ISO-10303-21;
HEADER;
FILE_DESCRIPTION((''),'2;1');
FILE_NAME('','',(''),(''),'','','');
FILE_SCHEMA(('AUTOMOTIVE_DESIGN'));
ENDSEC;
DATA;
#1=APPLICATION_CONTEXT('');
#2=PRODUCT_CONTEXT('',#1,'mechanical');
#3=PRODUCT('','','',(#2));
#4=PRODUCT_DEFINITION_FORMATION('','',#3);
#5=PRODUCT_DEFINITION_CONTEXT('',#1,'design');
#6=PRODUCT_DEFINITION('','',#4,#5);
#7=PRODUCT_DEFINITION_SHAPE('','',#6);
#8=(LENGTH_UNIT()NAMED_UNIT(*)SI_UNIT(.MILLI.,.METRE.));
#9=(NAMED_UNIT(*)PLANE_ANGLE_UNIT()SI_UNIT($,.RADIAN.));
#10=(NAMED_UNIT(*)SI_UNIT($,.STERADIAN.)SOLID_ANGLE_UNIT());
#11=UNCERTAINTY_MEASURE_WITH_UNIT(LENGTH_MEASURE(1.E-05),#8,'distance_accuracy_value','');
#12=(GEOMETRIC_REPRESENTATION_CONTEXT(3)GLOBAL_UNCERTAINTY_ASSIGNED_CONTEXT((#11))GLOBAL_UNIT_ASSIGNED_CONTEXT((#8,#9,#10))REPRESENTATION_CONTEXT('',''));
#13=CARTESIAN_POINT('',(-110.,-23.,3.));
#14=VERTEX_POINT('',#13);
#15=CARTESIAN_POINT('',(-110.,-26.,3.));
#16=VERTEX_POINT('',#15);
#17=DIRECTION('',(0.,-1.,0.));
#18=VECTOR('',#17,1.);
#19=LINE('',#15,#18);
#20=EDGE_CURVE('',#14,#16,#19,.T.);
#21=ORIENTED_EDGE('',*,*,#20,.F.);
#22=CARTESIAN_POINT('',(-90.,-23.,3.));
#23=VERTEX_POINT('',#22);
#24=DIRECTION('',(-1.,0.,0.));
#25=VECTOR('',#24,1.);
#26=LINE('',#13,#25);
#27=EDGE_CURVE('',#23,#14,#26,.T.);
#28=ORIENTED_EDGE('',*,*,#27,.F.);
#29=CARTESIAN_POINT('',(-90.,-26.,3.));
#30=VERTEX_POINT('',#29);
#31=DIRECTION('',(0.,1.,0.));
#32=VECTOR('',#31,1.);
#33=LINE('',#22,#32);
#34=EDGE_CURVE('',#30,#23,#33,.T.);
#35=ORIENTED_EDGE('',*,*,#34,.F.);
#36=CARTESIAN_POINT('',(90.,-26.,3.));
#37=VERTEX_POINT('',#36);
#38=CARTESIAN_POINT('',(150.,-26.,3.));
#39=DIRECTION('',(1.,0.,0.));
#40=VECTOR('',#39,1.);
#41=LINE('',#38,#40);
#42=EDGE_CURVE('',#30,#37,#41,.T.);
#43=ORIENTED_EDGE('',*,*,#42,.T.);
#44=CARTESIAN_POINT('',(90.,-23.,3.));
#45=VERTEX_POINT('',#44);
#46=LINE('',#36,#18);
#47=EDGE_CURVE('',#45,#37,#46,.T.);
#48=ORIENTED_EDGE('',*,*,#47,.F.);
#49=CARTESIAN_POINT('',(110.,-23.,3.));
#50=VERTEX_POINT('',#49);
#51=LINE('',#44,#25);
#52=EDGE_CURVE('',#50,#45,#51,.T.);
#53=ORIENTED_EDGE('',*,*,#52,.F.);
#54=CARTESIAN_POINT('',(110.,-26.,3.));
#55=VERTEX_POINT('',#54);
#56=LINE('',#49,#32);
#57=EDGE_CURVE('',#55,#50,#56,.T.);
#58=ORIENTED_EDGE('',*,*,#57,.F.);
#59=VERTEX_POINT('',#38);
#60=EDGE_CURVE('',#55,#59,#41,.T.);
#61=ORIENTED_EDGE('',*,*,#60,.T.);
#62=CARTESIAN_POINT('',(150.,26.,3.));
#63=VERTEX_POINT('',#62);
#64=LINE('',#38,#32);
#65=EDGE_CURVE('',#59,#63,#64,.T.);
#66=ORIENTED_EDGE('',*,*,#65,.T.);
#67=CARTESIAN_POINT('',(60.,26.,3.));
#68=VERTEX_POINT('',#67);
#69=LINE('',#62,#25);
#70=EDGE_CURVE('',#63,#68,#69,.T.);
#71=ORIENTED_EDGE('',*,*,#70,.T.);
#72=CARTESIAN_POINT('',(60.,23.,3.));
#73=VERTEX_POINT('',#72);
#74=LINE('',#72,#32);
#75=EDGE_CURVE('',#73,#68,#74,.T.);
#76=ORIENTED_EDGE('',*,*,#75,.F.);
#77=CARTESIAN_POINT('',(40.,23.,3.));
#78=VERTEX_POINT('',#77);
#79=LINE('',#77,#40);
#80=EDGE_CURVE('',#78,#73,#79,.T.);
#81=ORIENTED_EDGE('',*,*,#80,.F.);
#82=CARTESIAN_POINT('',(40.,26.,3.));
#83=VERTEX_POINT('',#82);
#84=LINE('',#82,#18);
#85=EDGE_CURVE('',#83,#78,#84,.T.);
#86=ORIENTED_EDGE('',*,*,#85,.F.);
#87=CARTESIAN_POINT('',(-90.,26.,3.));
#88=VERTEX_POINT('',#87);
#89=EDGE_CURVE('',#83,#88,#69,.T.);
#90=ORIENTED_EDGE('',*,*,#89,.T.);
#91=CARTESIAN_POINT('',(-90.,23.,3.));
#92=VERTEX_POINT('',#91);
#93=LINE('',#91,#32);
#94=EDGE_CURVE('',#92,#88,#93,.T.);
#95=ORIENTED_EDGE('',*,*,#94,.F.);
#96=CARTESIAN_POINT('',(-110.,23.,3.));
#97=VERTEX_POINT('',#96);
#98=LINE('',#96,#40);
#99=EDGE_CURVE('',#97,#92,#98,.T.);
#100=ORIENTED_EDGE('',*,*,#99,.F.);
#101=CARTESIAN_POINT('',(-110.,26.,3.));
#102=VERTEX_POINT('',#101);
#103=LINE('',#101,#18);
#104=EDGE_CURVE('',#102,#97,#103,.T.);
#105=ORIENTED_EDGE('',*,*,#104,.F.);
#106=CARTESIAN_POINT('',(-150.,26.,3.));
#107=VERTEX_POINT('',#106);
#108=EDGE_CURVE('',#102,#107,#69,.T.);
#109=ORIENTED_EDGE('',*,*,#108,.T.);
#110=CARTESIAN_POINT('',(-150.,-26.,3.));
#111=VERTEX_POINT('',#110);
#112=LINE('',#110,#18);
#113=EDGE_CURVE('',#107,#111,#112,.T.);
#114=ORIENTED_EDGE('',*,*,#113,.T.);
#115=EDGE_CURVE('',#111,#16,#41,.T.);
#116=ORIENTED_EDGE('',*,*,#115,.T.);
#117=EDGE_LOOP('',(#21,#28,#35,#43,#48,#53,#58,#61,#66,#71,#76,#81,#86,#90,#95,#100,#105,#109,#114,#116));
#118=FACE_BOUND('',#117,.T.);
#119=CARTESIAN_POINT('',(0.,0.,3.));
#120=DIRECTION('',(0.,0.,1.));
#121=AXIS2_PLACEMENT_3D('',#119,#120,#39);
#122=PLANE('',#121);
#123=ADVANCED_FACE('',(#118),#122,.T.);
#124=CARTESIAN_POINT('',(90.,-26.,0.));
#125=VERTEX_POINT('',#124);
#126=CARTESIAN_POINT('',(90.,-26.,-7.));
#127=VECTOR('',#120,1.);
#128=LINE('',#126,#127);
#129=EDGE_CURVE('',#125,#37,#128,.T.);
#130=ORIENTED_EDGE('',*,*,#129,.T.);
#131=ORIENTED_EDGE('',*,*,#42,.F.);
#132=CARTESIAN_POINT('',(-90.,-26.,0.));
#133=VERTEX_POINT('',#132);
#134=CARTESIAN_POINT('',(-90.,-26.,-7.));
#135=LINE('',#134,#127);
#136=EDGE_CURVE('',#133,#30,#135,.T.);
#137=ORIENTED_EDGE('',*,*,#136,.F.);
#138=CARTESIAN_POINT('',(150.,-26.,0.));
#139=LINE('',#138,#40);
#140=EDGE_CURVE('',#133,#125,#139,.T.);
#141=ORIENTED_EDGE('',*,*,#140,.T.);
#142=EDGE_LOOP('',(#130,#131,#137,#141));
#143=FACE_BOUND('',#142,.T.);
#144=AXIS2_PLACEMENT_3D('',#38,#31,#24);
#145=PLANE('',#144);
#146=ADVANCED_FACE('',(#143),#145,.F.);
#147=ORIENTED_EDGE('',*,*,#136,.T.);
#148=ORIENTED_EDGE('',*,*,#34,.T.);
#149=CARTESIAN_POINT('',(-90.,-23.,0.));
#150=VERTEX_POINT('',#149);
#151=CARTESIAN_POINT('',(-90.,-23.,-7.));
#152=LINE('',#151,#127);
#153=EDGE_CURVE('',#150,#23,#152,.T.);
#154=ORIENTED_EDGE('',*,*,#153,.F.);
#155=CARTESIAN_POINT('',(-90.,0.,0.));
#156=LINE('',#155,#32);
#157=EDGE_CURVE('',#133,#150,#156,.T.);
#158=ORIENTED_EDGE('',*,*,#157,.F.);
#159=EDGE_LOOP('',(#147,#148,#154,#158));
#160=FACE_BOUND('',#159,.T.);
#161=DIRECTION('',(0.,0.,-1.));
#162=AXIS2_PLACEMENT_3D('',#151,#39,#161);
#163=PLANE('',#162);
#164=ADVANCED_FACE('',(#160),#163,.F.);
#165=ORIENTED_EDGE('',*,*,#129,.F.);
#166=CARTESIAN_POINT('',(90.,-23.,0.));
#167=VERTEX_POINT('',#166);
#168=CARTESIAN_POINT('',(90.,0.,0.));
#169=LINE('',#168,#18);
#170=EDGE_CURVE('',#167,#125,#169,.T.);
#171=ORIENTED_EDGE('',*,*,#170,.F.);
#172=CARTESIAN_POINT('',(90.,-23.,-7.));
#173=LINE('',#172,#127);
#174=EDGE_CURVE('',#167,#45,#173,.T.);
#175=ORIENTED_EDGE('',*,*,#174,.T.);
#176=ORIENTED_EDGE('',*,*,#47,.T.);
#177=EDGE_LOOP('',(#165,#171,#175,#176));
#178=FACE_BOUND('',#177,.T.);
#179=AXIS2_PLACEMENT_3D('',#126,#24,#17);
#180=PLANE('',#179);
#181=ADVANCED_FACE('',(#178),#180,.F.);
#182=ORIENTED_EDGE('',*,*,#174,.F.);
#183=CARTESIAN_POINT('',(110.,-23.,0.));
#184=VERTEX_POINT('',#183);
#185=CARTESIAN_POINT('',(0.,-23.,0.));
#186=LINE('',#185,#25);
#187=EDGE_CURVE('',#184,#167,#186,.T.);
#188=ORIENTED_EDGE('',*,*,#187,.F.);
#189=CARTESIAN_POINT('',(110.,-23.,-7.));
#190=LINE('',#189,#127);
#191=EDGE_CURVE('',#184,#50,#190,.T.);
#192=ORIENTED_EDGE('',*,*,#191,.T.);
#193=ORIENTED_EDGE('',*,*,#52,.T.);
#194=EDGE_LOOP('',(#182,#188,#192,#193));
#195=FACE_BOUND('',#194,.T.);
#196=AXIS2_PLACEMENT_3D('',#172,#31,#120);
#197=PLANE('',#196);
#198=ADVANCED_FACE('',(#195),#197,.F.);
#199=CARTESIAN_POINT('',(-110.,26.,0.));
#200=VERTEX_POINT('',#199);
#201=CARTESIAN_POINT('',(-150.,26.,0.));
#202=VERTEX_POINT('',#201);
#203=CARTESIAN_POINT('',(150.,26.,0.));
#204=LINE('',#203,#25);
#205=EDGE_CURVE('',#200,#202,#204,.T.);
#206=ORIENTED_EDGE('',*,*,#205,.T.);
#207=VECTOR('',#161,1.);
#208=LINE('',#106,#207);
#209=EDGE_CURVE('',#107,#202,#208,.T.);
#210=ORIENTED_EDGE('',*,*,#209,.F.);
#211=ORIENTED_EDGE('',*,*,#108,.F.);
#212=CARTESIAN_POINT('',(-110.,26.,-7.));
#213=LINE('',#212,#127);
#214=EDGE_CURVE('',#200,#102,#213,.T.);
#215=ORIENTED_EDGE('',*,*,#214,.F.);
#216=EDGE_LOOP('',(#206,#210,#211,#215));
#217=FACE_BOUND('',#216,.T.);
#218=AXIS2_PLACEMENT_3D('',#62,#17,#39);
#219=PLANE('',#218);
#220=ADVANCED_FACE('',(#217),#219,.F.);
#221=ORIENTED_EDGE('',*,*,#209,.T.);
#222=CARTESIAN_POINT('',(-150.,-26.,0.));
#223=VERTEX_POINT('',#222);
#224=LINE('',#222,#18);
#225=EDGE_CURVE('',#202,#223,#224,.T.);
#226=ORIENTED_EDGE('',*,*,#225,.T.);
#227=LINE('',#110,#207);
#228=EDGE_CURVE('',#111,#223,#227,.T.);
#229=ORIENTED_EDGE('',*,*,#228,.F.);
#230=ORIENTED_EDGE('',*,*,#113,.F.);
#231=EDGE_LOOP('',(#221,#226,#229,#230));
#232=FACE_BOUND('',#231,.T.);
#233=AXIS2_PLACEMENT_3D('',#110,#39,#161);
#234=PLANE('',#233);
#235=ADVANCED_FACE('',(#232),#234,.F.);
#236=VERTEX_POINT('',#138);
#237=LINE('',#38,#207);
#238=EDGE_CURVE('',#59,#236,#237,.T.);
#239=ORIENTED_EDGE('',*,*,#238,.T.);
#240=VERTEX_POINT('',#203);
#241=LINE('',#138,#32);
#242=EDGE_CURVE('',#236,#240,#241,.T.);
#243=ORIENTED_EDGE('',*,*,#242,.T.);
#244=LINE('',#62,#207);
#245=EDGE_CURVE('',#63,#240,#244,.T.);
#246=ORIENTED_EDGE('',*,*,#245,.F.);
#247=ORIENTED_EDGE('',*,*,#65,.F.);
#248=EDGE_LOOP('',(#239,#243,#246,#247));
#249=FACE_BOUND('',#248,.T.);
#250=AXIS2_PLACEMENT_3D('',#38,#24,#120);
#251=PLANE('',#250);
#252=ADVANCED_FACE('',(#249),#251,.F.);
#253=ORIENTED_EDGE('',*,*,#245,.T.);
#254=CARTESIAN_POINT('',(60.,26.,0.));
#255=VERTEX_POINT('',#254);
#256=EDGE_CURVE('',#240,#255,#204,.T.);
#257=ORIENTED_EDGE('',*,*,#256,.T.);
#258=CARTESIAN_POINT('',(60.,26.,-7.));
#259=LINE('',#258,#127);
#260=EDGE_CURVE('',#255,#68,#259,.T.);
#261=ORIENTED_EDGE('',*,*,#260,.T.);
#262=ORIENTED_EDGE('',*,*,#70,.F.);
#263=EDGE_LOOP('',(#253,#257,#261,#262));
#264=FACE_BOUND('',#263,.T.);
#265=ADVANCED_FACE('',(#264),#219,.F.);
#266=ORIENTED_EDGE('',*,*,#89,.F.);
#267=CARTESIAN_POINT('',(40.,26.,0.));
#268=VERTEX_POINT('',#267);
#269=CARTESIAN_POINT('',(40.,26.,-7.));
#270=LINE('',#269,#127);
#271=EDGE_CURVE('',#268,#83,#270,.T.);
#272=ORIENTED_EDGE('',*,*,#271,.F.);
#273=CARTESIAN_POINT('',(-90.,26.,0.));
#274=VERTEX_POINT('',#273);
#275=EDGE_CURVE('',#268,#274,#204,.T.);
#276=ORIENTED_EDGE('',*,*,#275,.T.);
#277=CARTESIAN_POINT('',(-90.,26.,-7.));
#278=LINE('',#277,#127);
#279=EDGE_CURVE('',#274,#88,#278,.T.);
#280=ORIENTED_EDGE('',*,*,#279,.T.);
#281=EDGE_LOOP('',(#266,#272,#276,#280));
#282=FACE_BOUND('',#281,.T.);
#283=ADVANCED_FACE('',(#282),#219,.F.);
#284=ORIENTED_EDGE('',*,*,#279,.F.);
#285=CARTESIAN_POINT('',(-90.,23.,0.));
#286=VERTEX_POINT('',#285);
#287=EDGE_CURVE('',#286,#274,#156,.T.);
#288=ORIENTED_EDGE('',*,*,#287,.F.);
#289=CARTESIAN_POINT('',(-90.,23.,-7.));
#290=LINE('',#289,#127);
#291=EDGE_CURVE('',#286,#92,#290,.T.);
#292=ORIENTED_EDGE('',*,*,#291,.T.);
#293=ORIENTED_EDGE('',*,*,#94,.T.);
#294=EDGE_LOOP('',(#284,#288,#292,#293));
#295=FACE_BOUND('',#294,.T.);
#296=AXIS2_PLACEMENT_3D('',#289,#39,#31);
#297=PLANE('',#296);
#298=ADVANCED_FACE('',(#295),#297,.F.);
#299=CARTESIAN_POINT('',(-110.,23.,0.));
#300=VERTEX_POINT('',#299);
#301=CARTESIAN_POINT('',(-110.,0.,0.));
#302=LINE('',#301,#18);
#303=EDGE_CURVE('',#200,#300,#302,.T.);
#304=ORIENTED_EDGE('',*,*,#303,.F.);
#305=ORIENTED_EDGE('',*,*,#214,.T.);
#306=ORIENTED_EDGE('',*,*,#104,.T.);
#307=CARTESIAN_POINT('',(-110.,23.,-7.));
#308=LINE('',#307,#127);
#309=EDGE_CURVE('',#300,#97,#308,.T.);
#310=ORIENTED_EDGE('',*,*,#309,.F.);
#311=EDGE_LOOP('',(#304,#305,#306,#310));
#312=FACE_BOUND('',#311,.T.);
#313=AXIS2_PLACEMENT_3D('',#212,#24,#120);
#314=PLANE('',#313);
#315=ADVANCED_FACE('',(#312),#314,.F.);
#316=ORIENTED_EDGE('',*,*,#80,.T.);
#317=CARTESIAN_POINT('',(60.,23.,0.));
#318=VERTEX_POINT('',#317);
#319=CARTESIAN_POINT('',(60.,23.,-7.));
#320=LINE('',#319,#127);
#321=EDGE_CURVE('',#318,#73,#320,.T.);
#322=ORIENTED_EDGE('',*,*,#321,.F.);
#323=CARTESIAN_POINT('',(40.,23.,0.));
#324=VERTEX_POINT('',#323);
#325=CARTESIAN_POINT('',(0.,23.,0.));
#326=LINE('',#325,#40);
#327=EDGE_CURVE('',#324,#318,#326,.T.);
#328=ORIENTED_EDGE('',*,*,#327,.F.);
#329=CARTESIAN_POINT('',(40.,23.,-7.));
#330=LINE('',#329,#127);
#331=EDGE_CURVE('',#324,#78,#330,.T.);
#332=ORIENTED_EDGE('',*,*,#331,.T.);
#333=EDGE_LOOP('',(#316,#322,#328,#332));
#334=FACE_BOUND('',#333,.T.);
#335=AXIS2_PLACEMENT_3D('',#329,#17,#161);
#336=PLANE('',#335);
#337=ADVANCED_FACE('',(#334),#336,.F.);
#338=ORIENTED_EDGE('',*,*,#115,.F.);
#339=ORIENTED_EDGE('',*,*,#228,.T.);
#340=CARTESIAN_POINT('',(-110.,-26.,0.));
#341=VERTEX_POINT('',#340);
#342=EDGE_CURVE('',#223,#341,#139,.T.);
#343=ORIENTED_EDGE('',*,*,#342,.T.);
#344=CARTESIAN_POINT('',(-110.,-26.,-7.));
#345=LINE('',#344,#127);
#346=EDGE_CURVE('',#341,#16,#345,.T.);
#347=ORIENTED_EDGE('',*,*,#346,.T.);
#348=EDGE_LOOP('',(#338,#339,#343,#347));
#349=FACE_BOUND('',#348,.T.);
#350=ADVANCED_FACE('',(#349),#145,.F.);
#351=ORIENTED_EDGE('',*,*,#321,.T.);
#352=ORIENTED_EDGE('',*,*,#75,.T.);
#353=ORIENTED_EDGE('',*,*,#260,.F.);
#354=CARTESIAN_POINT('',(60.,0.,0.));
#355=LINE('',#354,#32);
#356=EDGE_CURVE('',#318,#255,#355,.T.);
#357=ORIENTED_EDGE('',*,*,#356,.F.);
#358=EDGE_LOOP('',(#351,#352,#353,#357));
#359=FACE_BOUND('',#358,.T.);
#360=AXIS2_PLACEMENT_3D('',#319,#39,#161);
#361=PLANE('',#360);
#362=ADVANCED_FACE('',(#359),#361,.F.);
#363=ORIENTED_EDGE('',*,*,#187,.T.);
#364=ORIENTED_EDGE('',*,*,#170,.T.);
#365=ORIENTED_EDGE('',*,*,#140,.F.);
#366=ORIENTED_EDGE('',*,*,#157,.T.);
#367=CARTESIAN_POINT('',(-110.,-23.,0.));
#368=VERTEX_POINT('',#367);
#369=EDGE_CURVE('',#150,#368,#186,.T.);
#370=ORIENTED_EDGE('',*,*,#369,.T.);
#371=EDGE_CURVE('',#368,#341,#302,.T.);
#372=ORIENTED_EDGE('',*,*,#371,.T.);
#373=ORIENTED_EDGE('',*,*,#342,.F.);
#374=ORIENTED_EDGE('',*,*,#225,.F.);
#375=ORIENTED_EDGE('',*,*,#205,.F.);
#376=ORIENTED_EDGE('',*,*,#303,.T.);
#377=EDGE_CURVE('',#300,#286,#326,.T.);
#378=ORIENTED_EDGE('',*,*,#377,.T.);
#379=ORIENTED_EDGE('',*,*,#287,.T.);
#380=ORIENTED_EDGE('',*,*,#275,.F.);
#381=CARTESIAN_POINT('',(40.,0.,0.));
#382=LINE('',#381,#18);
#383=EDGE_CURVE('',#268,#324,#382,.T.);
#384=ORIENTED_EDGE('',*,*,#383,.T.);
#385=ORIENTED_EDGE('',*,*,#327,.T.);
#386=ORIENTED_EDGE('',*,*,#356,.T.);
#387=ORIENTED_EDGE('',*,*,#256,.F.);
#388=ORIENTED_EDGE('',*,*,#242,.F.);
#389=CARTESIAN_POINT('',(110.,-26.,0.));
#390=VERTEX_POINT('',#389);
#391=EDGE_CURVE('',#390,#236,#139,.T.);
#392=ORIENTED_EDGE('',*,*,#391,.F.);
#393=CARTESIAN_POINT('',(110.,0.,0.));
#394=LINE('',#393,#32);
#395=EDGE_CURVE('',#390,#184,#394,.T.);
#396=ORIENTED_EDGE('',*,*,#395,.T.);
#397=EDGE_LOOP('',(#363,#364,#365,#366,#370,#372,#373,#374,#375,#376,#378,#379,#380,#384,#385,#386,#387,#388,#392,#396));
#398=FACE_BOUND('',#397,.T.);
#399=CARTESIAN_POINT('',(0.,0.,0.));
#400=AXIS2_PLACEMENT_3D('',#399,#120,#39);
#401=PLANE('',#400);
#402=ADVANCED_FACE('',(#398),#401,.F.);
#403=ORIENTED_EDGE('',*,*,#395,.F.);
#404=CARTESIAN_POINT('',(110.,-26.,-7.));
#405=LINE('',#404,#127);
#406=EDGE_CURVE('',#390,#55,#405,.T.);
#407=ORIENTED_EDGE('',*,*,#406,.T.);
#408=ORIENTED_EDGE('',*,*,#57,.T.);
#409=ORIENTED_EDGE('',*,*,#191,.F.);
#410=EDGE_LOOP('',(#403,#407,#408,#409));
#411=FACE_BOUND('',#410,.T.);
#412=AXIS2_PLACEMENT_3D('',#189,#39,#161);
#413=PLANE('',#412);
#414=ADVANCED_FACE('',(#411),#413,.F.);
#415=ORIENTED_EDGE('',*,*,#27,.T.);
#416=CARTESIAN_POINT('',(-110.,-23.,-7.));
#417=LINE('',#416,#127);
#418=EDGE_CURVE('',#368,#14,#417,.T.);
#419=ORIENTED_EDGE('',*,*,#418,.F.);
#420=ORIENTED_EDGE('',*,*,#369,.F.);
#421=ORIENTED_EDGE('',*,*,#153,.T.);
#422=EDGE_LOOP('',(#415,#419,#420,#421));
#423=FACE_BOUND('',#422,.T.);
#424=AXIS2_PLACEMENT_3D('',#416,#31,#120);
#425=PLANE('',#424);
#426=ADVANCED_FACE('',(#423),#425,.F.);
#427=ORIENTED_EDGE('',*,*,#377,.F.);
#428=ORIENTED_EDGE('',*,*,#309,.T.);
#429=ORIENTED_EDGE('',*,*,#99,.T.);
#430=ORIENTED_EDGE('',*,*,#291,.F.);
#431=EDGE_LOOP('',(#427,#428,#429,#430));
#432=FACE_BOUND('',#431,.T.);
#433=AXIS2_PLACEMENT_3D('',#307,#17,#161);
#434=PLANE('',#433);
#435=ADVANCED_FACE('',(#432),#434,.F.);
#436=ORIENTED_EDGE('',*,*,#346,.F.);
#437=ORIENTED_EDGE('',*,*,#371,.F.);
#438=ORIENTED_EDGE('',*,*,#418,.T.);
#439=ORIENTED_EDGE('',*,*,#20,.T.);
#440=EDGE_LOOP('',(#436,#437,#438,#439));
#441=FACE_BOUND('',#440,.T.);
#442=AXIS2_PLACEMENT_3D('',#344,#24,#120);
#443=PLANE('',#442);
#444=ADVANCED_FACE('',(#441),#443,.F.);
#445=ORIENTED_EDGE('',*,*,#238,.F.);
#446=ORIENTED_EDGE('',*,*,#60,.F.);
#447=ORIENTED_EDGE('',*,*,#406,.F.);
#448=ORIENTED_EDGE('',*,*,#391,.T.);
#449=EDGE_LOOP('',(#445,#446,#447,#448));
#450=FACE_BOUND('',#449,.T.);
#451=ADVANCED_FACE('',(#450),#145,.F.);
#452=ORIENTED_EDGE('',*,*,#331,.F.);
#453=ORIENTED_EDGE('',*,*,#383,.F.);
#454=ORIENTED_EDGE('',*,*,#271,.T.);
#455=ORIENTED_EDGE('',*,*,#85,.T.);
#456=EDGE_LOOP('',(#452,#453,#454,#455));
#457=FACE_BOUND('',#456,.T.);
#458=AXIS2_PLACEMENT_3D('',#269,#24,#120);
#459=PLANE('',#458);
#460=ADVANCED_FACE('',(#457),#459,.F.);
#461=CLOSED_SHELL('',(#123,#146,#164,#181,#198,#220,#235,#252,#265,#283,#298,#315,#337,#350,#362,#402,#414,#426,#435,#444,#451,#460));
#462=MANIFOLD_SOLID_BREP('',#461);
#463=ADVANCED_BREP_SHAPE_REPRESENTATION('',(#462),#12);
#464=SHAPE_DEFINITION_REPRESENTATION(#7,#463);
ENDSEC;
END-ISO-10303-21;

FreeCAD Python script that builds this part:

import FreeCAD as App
import Part
import Sketcher
Q = App.Units.Quantity


def add_polygon(sketch, points):
    """Adds a closed chain of lines whose ends are joined by coincident constraints."""
    first, n = sketch.GeometryCount, len(points)
    for a, b in zip(points, points[1:] + points[:1]):
        sketch.addGeometry(Part.LineSegment(App.Vector(*a, 0), App.Vector(*b, 0)), False)
    for i in range(n):
        sketch.addConstraint(Sketcher.Constraint("Coincident", first + i, 2, first + (i + 1) % n, 1))

doc = App.newDocument("Part")
body = doc.addObject("PartDesign::Body", "Body")

# Sketch on XY plane
sketch1 = body.newObject("Sketcher::SketchObject", "Sketch")
sketch1.AttachmentSupport = (doc.getObject("XY_Plane"), [""])
sketch1.MapMode = "FlatFace"
add_polygon(sketch1, [(-150, 26), (-150, -26), (150, -26), (150, 26)])  # lines 0-3
sketch1.addConstraint(Sketcher.Constraint("Vertical", 0))
sketch1.addConstraint(Sketcher.Constraint("Horizontal", 1))
sketch1.addConstraint(Sketcher.Constraint("Vertical", 2))
sketch1.addConstraint(Sketcher.Constraint("Horizontal", 3))
sketch1.addConstraint(Sketcher.Constraint("Symmetric", 0, 2, 2, 2, -1, 1))
sketch1.addConstraint(Sketcher.Constraint("DistanceX", 1, 1, 1, 2, Q("300 mm")))
sketch1.addConstraint(Sketcher.Constraint("DistanceY", 0, 2, 0, 1, Q("52 mm")))
pad1 = body.newObject("PartDesign::Pad", "Pad")
pad1.Profile = sketch1
pad1.Length = 3

# Sketch on XY plane
sketch2 = body.newObject("Sketcher::SketchObject", "Sketch001")
sketch2.AttachmentSupport = (doc.getObject("XY_Plane"), [""])
sketch2.MapMode = "FlatFace"
sketch2.AttachmentOffset = App.Placement(App.Vector(0, 0, 3), App.Rotation())
add_polygon(sketch2, [(-110, 26), (-110, 23), (-90, 23), (-90, 26)])  # lines 0-3
sketch2.addConstraint(Sketcher.Constraint("Vertical", 0))
sketch2.addConstraint(Sketcher.Constraint("Horizontal", 1))
sketch2.addConstraint(Sketcher.Constraint("Vertical", 2))
sketch2.addConstraint(Sketcher.Constraint("Horizontal", 3))
sketch2.addConstraint(Sketcher.Constraint("DistanceX", 1, 1, 1, 2, Q("20 mm")))
sketch2.addConstraint(Sketcher.Constraint("DistanceY", 0, 2, 0, 1, Q("3 mm")))
sketch2.addConstraint(Sketcher.Constraint("DistanceX", 0, 2, -1, 1, Q("110 mm")))
sketch2.addConstraint(Sketcher.Constraint("DistanceY", -1, 1, 0, 2, Q("23 mm")))
pocket1 = body.newObject("PartDesign::Pocket", "Pocket")
pocket1.Profile = sketch2
pocket1.Length = 10

# Sketch on XY plane
sketch3 = body.newObject("Sketcher::SketchObject", "Sketch002")
sketch3.AttachmentSupport = (doc.getObject("XY_Plane"), [""])
sketch3.MapMode = "FlatFace"
sketch3.AttachmentOffset = App.Placement(App.Vector(0, 0, 3), App.Rotation())
add_polygon(sketch3, [(-110, -23), (-110, -26), (-90, -26), (-90, -23)])  # lines 0-3
add_polygon(sketch3, [(90, -23), (90, -26), (110, -26), (110, -23)])  # lines 4-7
sketch3.addConstraint(Sketcher.Constraint("Vertical", 0))
sketch3.addConstraint(Sketcher.Constraint("Horizontal", 1))
sketch3.addConstraint(Sketcher.Constraint("Vertical", 2))
sketch3.addConstraint(Sketcher.Constraint("Horizontal", 3))
sketch3.addConstraint(Sketcher.Constraint("Vertical", 4))
sketch3.addConstraint(Sketcher.Constraint("Horizontal", 5))
sketch3.addConstraint(Sketcher.Constraint("Vertical", 6))
sketch3.addConstraint(Sketcher.Constraint("Horizontal", 7))
sketch3.addConstraint(Sketcher.Constraint("Symmetric", 1, 2, 4, 2, -2))
sketch3.addConstraint(Sketcher.Constraint("Symmetric", 3, 2, 6, 2, -2))
sketch3.addConstraint(Sketcher.Constraint("DistanceX", 1, 1, 1, 2, Q("20 mm")))
sketch3.addConstraint(Sketcher.Constraint("DistanceY", 0, 2, 0, 1, Q("3 mm")))
sketch3.addConstraint(Sketcher.Constraint("DistanceX", 0, 2, -1, 1, Q("110 mm")))
sketch3.addConstraint(Sketcher.Constraint("DistanceY", 0, 2, -1, 1, Q("26 mm")))
pocket2 = body.newObject("PartDesign::Pocket", "Pocket001")
pocket2.Profile = sketch3
pocket2.Length = 10

# Sketch on XY plane
sketch4 = body.newObject("Sketcher::SketchObject", "Sketch003")
sketch4.AttachmentSupport = (doc.getObject("XY_Plane"), [""])
sketch4.MapMode = "FlatFace"
sketch4.AttachmentOffset = App.Placement(App.Vector(0, 0, 3), App.Rotation())
add_polygon(sketch4, [(40, 26), (40, 23), (60, 23), (60, 26)])  # lines 0-3
sketch4.addConstraint(Sketcher.Constraint("Vertical", 0))
sketch4.addConstraint(Sketcher.Constraint("Horizontal", 1))
sketch4.addConstraint(Sketcher.Constraint("Vertical", 2))
sketch4.addConstraint(Sketcher.Constraint("Horizontal", 3))
sketch4.addConstraint(Sketcher.Constraint("DistanceX", 1, 1, 1, 2, Q("20 mm")))
sketch4.addConstraint(Sketcher.Constraint("DistanceY", 0, 2, 0, 1, Q("3 mm")))
sketch4.addConstraint(Sketcher.Constraint("DistanceX", -1, 1, 0, 2, Q("40 mm")))
sketch4.addConstraint(Sketcher.Constraint("DistanceY", -1, 1, 0, 2, Q("23 mm")))
pocket3 = body.newObject("PartDesign::Pocket", "Pocket002")
pocket3.Profile = sketch4
pocket3.Length = 10

doc.recompute()
